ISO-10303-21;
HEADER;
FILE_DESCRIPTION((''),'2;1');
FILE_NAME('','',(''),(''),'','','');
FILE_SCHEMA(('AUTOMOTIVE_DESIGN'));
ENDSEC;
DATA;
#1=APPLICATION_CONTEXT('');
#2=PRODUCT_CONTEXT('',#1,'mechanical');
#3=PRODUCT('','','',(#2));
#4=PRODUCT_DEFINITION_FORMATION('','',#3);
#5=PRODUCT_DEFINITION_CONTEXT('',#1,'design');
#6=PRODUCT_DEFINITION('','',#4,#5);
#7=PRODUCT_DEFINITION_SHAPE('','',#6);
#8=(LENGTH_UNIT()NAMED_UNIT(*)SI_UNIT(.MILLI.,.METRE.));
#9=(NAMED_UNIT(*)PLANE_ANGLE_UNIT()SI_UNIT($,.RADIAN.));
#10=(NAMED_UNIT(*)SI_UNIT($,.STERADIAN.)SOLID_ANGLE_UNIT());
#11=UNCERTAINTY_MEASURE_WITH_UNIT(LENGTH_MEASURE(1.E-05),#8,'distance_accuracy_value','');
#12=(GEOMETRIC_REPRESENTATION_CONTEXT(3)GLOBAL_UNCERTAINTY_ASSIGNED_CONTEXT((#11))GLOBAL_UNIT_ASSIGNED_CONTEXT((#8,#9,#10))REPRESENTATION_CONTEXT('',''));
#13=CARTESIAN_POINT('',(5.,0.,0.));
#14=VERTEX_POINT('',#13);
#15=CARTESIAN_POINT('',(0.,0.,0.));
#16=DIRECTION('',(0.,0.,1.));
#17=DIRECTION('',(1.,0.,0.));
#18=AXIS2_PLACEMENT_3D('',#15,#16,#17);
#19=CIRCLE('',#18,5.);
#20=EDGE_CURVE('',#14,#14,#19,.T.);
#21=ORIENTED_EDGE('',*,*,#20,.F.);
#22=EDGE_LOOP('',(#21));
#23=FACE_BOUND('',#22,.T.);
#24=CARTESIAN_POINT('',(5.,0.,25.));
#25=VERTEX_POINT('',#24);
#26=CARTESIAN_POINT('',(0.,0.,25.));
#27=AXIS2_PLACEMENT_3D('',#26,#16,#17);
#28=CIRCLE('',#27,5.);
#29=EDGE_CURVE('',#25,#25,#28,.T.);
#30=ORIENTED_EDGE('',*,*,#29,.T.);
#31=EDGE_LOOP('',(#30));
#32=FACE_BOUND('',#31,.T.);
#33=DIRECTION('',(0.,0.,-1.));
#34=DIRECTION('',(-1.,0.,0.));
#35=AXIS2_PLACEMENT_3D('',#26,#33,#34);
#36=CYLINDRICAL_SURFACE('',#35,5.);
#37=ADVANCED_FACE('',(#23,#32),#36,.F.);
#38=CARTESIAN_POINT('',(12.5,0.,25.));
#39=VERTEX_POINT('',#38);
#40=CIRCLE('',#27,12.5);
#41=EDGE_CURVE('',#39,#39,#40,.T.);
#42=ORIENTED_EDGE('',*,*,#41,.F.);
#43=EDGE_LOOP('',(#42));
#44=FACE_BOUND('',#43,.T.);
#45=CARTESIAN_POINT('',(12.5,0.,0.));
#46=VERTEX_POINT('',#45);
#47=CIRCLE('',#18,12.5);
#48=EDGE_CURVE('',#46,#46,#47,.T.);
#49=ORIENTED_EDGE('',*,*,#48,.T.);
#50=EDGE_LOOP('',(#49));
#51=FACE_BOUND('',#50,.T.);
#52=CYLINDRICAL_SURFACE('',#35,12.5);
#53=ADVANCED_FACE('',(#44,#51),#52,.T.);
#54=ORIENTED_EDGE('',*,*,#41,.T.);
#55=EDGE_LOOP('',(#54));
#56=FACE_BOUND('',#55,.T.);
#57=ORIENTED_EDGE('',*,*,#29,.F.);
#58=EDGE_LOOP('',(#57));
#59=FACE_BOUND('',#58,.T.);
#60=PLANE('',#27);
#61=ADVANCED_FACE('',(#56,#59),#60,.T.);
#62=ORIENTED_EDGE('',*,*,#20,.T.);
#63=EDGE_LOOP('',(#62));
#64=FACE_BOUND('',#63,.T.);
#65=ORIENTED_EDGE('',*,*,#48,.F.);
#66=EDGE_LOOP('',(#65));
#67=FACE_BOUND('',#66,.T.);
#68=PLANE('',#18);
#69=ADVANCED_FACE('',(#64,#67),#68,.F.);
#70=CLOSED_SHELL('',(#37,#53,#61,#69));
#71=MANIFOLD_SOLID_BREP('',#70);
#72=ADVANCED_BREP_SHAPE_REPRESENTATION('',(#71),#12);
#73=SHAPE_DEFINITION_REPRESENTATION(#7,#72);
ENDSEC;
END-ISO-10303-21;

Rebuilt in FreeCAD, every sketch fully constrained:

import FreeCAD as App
import Part
import Sketcher
from FreeCAD import Vector

doc = App.newDocument("Part")
body = doc.addObject("PartDesign::Body", "Body")

# Sketch on XY plane
sketch1 = body.newObject("Sketcher::SketchObject", "Sketch")
sketch1.AttachmentSupport = (doc.getObject("XY_Plane"), [""])
sketch1.MapMode = "FlatFace"
sketch1.addGeometry([
    Part.Circle(Vector(0, 0, 0), Vector(0, 0, 1), 12),
    Part.Circle(Vector(0, 0, 0), Vector(0, 0, 1), 5),
], False)
sketch1.addConstraint([
    Sketcher.Constraint("Coincident", 0, 3, -1, 1),
    Sketcher.Constraint("Coincident", 1, 3, -1, 1),
    Sketcher.Constraint("Diameter", 0, 25.0),
    Sketcher.Constraint("Diameter", 1, 10.0),
])
pad1 = body.newObject("PartDesign::Pad", "Pad")
pad1.Profile = sketch1
pad1.Length = 25

doc.recompute()
